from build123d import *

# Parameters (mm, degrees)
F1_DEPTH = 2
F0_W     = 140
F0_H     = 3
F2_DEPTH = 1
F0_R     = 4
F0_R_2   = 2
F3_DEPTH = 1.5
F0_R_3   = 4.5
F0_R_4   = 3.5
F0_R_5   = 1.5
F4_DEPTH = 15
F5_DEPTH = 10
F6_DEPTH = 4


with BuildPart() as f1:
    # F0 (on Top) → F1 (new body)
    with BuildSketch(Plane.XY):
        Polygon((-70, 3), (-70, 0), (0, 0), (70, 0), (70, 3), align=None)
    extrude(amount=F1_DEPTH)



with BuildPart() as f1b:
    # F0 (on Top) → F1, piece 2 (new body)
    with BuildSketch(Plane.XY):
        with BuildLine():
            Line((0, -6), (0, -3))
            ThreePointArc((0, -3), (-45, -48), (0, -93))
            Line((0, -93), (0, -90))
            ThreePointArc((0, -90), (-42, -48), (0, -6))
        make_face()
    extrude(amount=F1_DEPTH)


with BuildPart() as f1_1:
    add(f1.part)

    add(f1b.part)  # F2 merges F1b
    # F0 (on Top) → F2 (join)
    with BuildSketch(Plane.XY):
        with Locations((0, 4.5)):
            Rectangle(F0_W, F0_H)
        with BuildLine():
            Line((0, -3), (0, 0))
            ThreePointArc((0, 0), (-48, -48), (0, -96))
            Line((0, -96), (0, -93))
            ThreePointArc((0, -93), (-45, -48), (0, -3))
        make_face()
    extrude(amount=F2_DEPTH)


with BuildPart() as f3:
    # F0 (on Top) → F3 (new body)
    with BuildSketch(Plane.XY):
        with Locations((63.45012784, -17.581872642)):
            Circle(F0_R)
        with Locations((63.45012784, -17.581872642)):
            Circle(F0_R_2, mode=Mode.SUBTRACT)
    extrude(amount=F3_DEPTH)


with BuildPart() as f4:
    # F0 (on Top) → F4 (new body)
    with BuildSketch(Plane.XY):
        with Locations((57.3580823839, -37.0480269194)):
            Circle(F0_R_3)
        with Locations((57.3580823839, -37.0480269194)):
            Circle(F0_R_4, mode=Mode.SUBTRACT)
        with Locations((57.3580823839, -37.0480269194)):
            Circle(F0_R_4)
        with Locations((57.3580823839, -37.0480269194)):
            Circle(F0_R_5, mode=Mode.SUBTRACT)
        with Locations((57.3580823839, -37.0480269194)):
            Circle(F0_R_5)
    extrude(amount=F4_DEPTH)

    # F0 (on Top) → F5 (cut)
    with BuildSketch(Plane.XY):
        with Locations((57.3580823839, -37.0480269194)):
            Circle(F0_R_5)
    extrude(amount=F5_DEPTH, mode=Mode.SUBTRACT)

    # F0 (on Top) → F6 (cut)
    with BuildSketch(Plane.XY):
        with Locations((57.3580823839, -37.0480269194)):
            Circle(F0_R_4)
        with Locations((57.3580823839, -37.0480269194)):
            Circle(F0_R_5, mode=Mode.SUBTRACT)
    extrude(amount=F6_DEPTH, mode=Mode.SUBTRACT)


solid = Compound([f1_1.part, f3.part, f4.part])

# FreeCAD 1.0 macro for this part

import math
import FreeCAD as App
import Part
import Sketcher
from FreeCAD import Vector
Q = App.Units.Quantity


def add_polygon(sketch, points):
    """Adds a closed chain of lines whose ends are joined by coincident constraints."""
    first, n = sketch.GeometryCount, len(points)
    for a, b in zip(points, points[1:] + points[:1]):
        sketch.addGeometry(Part.LineSegment(App.Vector(*a, 0), App.Vector(*b, 0)), False)
    for i in range(n):
        sketch.addConstraint(Sketcher.Constraint("Coincident", first + i, 2, first + (i + 1) % n, 1))

doc = App.newDocument("Part")
body = doc.addObject("PartDesign::Body", "Body")

# Sketch on XY plane
sketch1 = doc.addObject("Sketcher::SketchObject", "Sketch")
body.addObject(sketch1)
sketch1.AttachmentSupport = (doc.XY_Plane, [""])
sketch1.MapMode = "FlatFace"
add_polygon(sketch1, [(-70, 3), (-70, 0), (70, 0), (70, 3)])  # lines 0-3
sketch1.addConstraint([
    Sketcher.Constraint("Vertical", 0),
    Sketcher.Constraint("Horizontal", 1),
    Sketcher.Constraint("Vertical", 2),
    Sketcher.Constraint("Horizontal", 3),
    Sketcher.Constraint("Symmetric", 0, 2, 1, 2, -1, 1),
    Sketcher.Constraint("DistanceX", 1, 1, 1, 2, Q("140 mm")),
    Sketcher.Constraint("DistanceY", 0, 2, 0, 1, Q("3 mm")),
])
pad1 = doc.addObject("PartDesign::Pad", "Pad")
body.addObject(pad1)
pad1.Profile = sketch1
pad1.Length = 2
body2 = doc.addObject("PartDesign::Body", "Body001")

# Sketch on XY plane
sketch2 = doc.addObject("Sketcher::SketchObject", "Sketch001")
body2.addObject(sketch2)
sketch2.AttachmentSupport = (doc.getObject("XY_Plane001"), [""])
sketch2.MapMode = "FlatFace"
sketch2.addGeometry([
    Part.LineSegment(Vector(0, -6, 0), Vector(0, -3, 0)),
    Part.ArcOfCircle(Part.Circle(Vector(0, -48, 0), Vector(0, 0, 1), 45), math.radians(90), math.radians(270)),
    Part.LineSegment(Vector(0, -93, 0), Vector(0, -90, 0)),
    Part.ArcOfCircle(Part.Circle(Vector(0, -48, 0), Vector(0, 0, 1), 42), math.radians(90), math.radians(270)),
], False)
sketch2.addConstraint([
    Sketcher.Constraint("Coincident", 0, 2, 1, 1),
    Sketcher.Constraint("Coincident", 1, 2, 2, 1),
    Sketcher.Constraint("Coincident", 2, 2, 3, 2),
    Sketcher.Constraint("Coincident", 3, 1, 0, 1),
    Sketcher.Constraint("Vertical", 0),
    Sketcher.Constraint("Vertical", 2),
    Sketcher.Constraint("Coincident", 3, 3, 1, 3),
    Sketcher.Constraint("PointOnObject", 1, 3, -2),
    Sketcher.Constraint("PointOnObject", 0, 2, -2),
    Sketcher.Constraint("PointOnObject", 1, 2, -2),
    Sketcher.Constraint("Radius", 1, Q("45 mm")),
    Sketcher.Constraint("Radius", 3, Q("42 mm")),
    Sketcher.Constraint("DistanceY", 1, 3, -1, 1, Q("48 mm")),
])
pad2 = doc.addObject("PartDesign::Pad", "Pad001")
body2.addObject(pad2)
pad2.Profile = sketch2
pad2.Length = 2
body.AllowCompound = True
doc.recompute()

boolean = doc.addObject("PartDesign::Boolean", "Boolean")
body.addObject(boolean)
boolean.Type = "Fuse"
boolean.addObjects([body2])

# Sketch on XY plane
sketch3 = doc.addObject("Sketcher::SketchObject", "Sketch002")
body.addObject(sketch3)
sketch3.AttachmentSupport = (doc.XY_Plane, [""])
sketch3.MapMode = "FlatFace"
add_polygon(sketch3, [(-70, 6), (-70, 3), (70, 3), (70, 6)])  # lines 0-3
sketch3.addGeometry(Part.LineSegment(Vector(0, -3, 0), Vector(0, 0, 0)), False)  # 4
sketch3.addGeometry(Part.ArcOfCircle(Part.Circle(Vector(0, -48, 0), Vector(0, 0, 1), 48), math.radians(90), math.radians(270)), False)  # 5
sketch3.addGeometry(Part.LineSegment(Vector(0, -96, 0), Vector(0, -93, 0)), False)  # 6
sketch3.addGeometry(Part.ArcOfCircle(Part.Circle(Vector(0, -48, 0), Vector(0, 0, 1), 45), math.radians(90), math.radians(270)), False)  # 7
sketch3.addConstraint([
    Sketcher.Constraint("Coincident", 4, 2, 5, 1),
    Sketcher.Constraint("Coincident", 5, 2, 6, 1),
    Sketcher.Constraint("Coincident", 6, 2, 7, 2),
    Sketcher.Constraint("Coincident", 7, 1, 4, 1),
    Sketcher.Constraint("Vertical", 0),
    Sketcher.Constraint("Horizontal", 1),
    Sketcher.Constraint("Vertical", 2),
    Sketcher.Constraint("Horizontal", 3),
    Sketcher.Constraint("Vertical", 4),
    Sketcher.Constraint("Vertical", 6),
    Sketcher.Constraint("Coincident", 4, 2, -1, 1),
    Sketcher.Constraint("Coincident", 7, 3, 5, 3),
    Sketcher.Constraint("PointOnObject", 5, 3, -2),
    Sketcher.Constraint("PointOnObject", 5, 2, -2),
    Sketcher.Constraint("Equal", 2, 4),
    Sketcher.Constraint("Radius", 5, Q("48 mm")),
    Sketcher.Constraint("Radius", 7, Q("45 mm")),
    Sketcher.Constraint("DistanceX", 1, 1, 1, 2, Q("140 mm")),
    Sketcher.Constraint("DistanceX", 0, 2, -1, 1, Q("70 mm")),
    Sketcher.Constraint("DistanceY", -1, 1, 0, 2, Q("3 mm")),
])
pad3 = doc.addObject("PartDesign::Pad", "Pad002")
body.addObject(pad3)
pad3.Profile = sketch3
pad3.Length = 1
body3 = doc.addObject("PartDesign::Body", "Body002")

# Sketch on XY plane
sketch4 = doc.addObject("Sketcher::SketchObject", "Sketch003")
body3.addObject(sketch4)
sketch4.AttachmentSupport = (doc.getObject("XY_Plane002"), [""])
sketch4.MapMode = "FlatFace"
sketch4.addGeometry([
    Part.Circle(Vector(63.450128, -17.581873, 0), Vector(0, 0, 1), 4),
    Part.Circle(Vector(63.450128, -17.581873, 0), Vector(0, 0, 1), 2),
], False)
sketch4.addConstraint([
    Sketcher.Constraint("Coincident", 1, 3, 0, 3),
    Sketcher.Constraint("Diameter", 0, Q("8 mm")),
    Sketcher.Constraint("Diameter", 1, Q("4 mm")),
    Sketcher.Constraint("DistanceX", -1, 1, 0, 3, Q("63.450128 mm")),
    Sketcher.Constraint("DistanceY", 0, 3, -1, 1, Q("17.581873 mm")),
])
pad4 = doc.addObject("PartDesign::Pad", "Pad003")
body3.addObject(pad4)
pad4.Profile = sketch4
pad4.Length = 1.5
body4 = doc.addObject("PartDesign::Body", "Body003")

# Sketch on XY plane
sketch5 = doc.addObject("Sketcher::SketchObject", "Sketch004")
body4.addObject(sketch5)
sketch5.AttachmentSupport = (doc.getObject("XY_Plane003"), [""])
sketch5.MapMode = "FlatFace"
sketch5.addGeometry(Part.Circle(Vector(57.358082, -37.048027, 0), Vector(0, 0, 1), 4.5), False)
sketch5.addConstraint([
    Sketcher.Constraint("Diameter", 0, Q("9 mm")),
    Sketcher.Constraint("DistanceX", -1, 1, 0, 3, Q("57.358082 mm")),
    Sketcher.Constraint("DistanceY", 0, 3, -1, 1, Q("37.048027 mm")),
])
pad5 = doc.addObject("PartDesign::Pad", "Pad004")
body4.addObject(pad5)
pad5.Profile = sketch5
pad5.Length = 15

# Sketch on XY plane
sketch6 = doc.addObject("Sketcher::SketchObject", "Sketch005")
body4.addObject(sketch6)
sketch6.AttachmentSupport = (doc.getObject("XY_Plane003"), [""])
sketch6.MapMode = "FlatFace"
sketch6.addGeometry(Part.Circle(Vector(57.358082, -37.048027, 0), Vector(0, 0, 1), 1.5), False)
sketch6.addConstraint([
    Sketcher.Constraint("Diameter", 0, Q("3 mm")),
    Sketcher.Constraint("DistanceX", -1, 1, 0, 3, Q("57.358082 mm")),
    Sketcher.Constraint("DistanceY", 0, 3, -1, 1, Q("37.048027 mm")),
])
pocket1 = doc.addObject("PartDesign::Pocket", "Pocket")
body4.addObject(pocket1)
pocket1.Profile = sketch6
pocket1.Length = 10
pocket1.Reversed = True

# Sketch on XY plane
sketch7 = doc.addObject("Sketcher::SketchObject", "Sketch006")
body4.addObject(sketch7)
sketch7.AttachmentSupport = (doc.getObject("XY_Plane003"), [""])
sketch7.MapMode = "FlatFace"
sketch7.addGeometry([
    Part.Circle(Vector(57.358082, -37.048027, 0), Vector(0, 0, 1), 3.5),
    Part.Circle(Vector(57.358082, -37.048027, 0), Vector(0, 0, 1), 1.5),
], False)
sketch7.addConstraint([
    Sketcher.Constraint("Coincident", 1, 3, 0, 3),
    Sketcher.Constraint("Diameter", 0, Q("7 mm")),
    Sketcher.Constraint("Diameter", 1, Q("3 mm")),
    Sketcher.Constraint("DistanceX", -1, 1, 0, 3, Q("57.358082 mm")),
    Sketcher.Constraint("DistanceY", 0, 3, -1, 1, Q("37.048027 mm")),
])
pocket2 = doc.addObject("PartDesign::Pocket", "Pocket001")
body4.addObject(pocket2)
pocket2.Profile = sketch7
pocket2.Length = 4
pocket2.Reversed = True

doc.recompute()
